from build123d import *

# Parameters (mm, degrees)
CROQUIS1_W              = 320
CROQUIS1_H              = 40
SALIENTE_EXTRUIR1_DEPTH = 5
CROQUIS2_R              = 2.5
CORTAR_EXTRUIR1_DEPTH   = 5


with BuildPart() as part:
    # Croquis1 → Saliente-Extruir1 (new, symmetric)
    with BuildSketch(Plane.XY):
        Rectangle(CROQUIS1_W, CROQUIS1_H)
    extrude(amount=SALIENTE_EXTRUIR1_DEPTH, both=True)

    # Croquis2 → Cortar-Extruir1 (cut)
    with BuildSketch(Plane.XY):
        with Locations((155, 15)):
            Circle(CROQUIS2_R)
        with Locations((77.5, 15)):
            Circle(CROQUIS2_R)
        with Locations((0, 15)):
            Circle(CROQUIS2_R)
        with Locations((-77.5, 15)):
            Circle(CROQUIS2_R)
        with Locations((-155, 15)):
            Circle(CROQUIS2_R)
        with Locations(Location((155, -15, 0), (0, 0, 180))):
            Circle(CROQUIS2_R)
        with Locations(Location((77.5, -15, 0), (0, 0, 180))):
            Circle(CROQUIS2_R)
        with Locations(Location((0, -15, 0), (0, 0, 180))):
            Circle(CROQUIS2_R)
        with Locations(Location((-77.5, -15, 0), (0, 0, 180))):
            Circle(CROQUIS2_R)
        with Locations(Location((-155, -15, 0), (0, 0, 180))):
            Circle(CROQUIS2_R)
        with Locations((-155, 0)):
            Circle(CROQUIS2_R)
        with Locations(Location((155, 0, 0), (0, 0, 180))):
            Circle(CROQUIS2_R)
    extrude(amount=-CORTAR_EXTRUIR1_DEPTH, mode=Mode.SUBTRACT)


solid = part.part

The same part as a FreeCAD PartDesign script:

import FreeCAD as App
import Part
import Sketcher

V = App.Vector

doc = App.newDocument("Part")
params = doc.addObject("Spreadsheet::Sheet", "Params")
for row, (alias, value) in enumerate([
    ("sketch1_width", "320 mm"),
    ("sketch1_height", "40 mm"),
    ("pad1_length", "10 mm"),
    ("sketch2_diameter", "5 mm"),
    ("pocket1_length", "5 mm"),
], start=1):
    params.set(f"A{row}", alias)
    params.set(f"B{row}", "=" + value)
    params.setAlias(f"B{row}", alias)

body = doc.addObject("PartDesign::Body", "Body")

sketch1 = body.newObject("Sketcher::SketchObject", "Sketch")
sketch1.AttachmentSupport = (doc.getObject("XY_Plane"), [""])
sketch1.MapMode = "FlatFace"
sketch1.addGeometry([
    Part.LineSegment(V(-160, 20, 0), V(-160, -20, 0)),
    Part.LineSegment(V(-160, -20, 0), V(160, -20, 0)),
    Part.LineSegment(V(160, -20, 0), V(160, 20, 0)),
    Part.LineSegment(V(160, 20, 0), V(-160, 20, 0)),
], False)
sketch1.addConstraint([
    Sketcher.Constraint("Coincident", 0, 2, 1, 1),
    Sketcher.Constraint("Coincident", 1, 2, 2, 1),
    Sketcher.Constraint("Coincident", 2, 2, 3, 1),
    Sketcher.Constraint("Coincident", 3, 2, 0, 1),
    Sketcher.Constraint("Vertical", 0),
    Sketcher.Constraint("Horizontal", 1),
    Sketcher.Constraint("Vertical", 2),
    Sketcher.Constraint("Horizontal", 3),
    Sketcher.Constraint("Symmetric", 0, 2, 2, 2, -1, 1),
    Sketcher.Constraint("DistanceX", 1, 1, 1, 2, 320.0),
    Sketcher.Constraint("DistanceY", 0, 2, 0, 1, 40.0),
])
sketch1.setExpression("Constraints[9]", "Params.sketch1_width")
sketch1.setExpression("Constraints[10]", "Params.sketch1_height")
pad1 = body.newObject("PartDesign::Pad", "Pad")
pad1.Profile = sketch1
pad1.setExpression("Length", "Params.pad1_length")
pad1.Midplane = True

sketch2 = body.newObject("Sketcher::SketchObject", "Sketch001")
sketch2.AttachmentSupport = (doc.getObject("XY_Plane"), [""])
sketch2.MapMode = "FlatFace"
sketch2.addGeometry([
    Part.Circle(V(155, 15, 0), V(0, 0, 1), 2.5),
    Part.Circle(V(77.5, 15, 0), V(0, 0, 1), 2.5),
    Part.Circle(V(0, 15, 0), V(0, 0, 1), 2.5),
    Part.Circle(V(-77.5, 15, 0), V(0, 0, 1), 2.5),
    Part.Circle(V(-155, 15, 0), V(0, 0, 1), 2.5),
    Part.Circle(V(155, -15, 0), V(0, 0, 1), 2.5),
    Part.Circle(V(77.5, -15, 0), V(0, 0, 1), 2.5),
    Part.Circle(V(0, -15, 0), V(0, 0, 1), 2.5),
    Part.Circle(V(-77.5, -15, 0), V(0, 0, 1), 2.5),
    Part.Circle(V(-155, -15, 0), V(0, 0, 1), 2.5),
    Part.Circle(V(-155, 0, 0), V(0, 0, 1), 2.5),
    Part.Circle(V(155, 0, 0), V(0, 0, 1), 2.5),
], False)
sketch2.addConstraint([
    Sketcher.Constraint("Equal", 0, 1),
    Sketcher.Constraint("Equal", 1, 2),
    Sketcher.Constraint("Equal", 2, 3),
    Sketcher.Constraint("Equal", 3, 4),
    Sketcher.Constraint("Equal", 4, 5),
    Sketcher.Constraint("Equal", 5, 6),
    Sketcher.Constraint("Equal", 6, 7),
    Sketcher.Constraint("Equal", 7, 8),
    Sketcher.Constraint("Equal", 8, 9),
    Sketcher.Constraint("Equal", 9, 10),
    Sketcher.Constraint("Equal", 10, 11),
    Sketcher.Constraint("Symmetric", 4, 3, 5, 3, -1, 1),
    Sketcher.Constraint("Symmetric", 3, 3, 6, 3, -1, 1),
    Sketcher.Constraint("Symmetric", 2, 3, 7, 3, -1, 1),
    Sketcher.Constraint("Symmetric", 1, 3, 8, 3, -1, 1),
    Sketcher.Constraint("Symmetric", 0, 3, 9, 3, -1, 1),
    Sketcher.Constraint("Symmetric", 10, 3, 11, 3, -1, 1),
    Sketcher.Constraint("Symmetric", 1, 3, 3, 3, -2),
    Sketcher.Constraint("Symmetric", 0, 3, 4, 3, -2),
    Sketcher.Constraint("PointOnObject", 2, 3, -2),
    Sketcher.Constraint("PointOnObject", 10, 3, -1),
    Sketcher.Constraint("Horizontal", 0, 3, 1, 3),
    Sketcher.Constraint("Horizontal", 1, 3, 2, 3),
    Sketcher.Constraint("Vertical", 9, 3, 10, 3),
    Sketcher.Constraint("Diameter", 0, 5.0),
    Sketcher.Constraint("DistanceX", -1, 1, 0, 3, 155.0),
    Sketcher.Constraint("DistanceY", -1, 1, 0, 3, 15.0),
    Sketcher.Constraint("DistanceX", 3, 3, 1, 3, 155.0),
])
sketch2.setExpression("Constraints[24]", "Params.sketch2_diameter")
pocket1 = body.newObject("PartDesign::Pocket", "Pocket")
pocket1.Profile = sketch2
pocket1.setExpression("Length", "Params.pocket1_length")

doc.recompute()
